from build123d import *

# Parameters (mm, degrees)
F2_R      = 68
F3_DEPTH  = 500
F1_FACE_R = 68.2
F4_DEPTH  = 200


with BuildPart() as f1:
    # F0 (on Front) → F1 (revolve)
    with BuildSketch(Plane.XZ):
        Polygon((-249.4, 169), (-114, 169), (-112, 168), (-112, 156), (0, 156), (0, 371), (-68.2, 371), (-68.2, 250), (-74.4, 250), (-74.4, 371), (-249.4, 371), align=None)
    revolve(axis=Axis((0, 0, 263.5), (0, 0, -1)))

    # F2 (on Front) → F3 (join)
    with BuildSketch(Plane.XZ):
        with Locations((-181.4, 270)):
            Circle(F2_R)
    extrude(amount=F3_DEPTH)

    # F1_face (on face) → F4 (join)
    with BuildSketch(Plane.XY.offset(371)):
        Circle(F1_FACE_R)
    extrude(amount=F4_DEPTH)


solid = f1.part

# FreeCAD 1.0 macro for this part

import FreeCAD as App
import Part
import Sketcher
Q = App.Units.Quantity

doc = App.newDocument("Part")
params = doc.addObject("Spreadsheet::Sheet", "Params")
for row, (alias, value) in enumerate([
    ("sketch1_width", "112 mm"),
    ("sketch1_width2", "175 mm"),
    ("sketch1_height", "12 mm"),
    ("sketch1_height2", "215 mm"),
    ("sketch1_height3", "121 mm"),
    ("revolution_angle", "360 deg"),
    ("sketch2_diameter", "136 mm"),
    ("pad1_length", "500 mm"),
    ("sketch3_diameter", "136.4 mm"),
    ("pad2_length", "200 mm"),
], start=1):
    params.set(f"A{row}", alias)
    params.set(f"B{row}", "=" + value)
    params.setAlias(f"B{row}", alias)

body = doc.addObject("PartDesign::Body", "Body")

sketch1 = body.newObject("Sketcher::SketchObject", "Sketch")
sketch1.AttachmentSupport = (doc.getObject("XZ_Plane"), [""])
sketch1.MapMode = "FlatFace"
sketch1.addGeometry(Part.LineSegment(App.Vector(-249.4, 169, 0), App.Vector(-114, 169, 0)), False)
sketch1.addGeometry(Part.LineSegment(App.Vector(-114, 169, 0), App.Vector(-112, 168, 0)), False)
sketch1.addGeometry(Part.LineSegment(App.Vector(-112, 168, 0), App.Vector(-112, 156, 0)), False)
sketch1.addGeometry(Part.LineSegment(App.Vector(-112, 156, 0), App.Vector(0, 156, 0)), False)
sketch1.addGeometry(Part.LineSegment(App.Vector(0, 156, 0), App.Vector(0, 371, 0)), False)
sketch1.addGeometry(Part.LineSegment(App.Vector(0, 371, 0), App.Vector(-68.2, 371, 0)), False)
sketch1.addGeometry(Part.LineSegment(App.Vector(-68.2, 371, 0), App.Vector(-68.2, 250, 0)), False)
sketch1.addGeometry(Part.LineSegment(App.Vector(-68.2, 250, 0), App.Vector(-74.4, 250, 0)), False)
sketch1.addGeometry(Part.LineSegment(App.Vector(-74.4, 250, 0), App.Vector(-74.4, 371, 0)), False)
sketch1.addGeometry(Part.LineSegment(App.Vector(-74.4, 371, 0), App.Vector(-249.4, 371, 0)), False)
sketch1.addGeometry(Part.LineSegment(App.Vector(-249.4, 371, 0), App.Vector(-249.4, 169, 0)), False)
sketch1.addConstraint(Sketcher.Constraint("Coincident", 0, 2, 1, 1))
sketch1.addConstraint(Sketcher.Constraint("Coincident", 1, 2, 2, 1))
sketch1.addConstraint(Sketcher.Constraint("Coincident", 2, 2, 3, 1))
sketch1.addConstraint(Sketcher.Constraint("Coincident", 3, 2, 4, 1))
sketch1.addConstraint(Sketcher.Constraint("Coincident", 4, 2, 5, 1))
sketch1.addConstraint(Sketcher.Constraint("Coincident", 5, 2, 6, 1))
sketch1.addConstraint(Sketcher.Constraint("Coincident", 6, 2, 7, 1))
sketch1.addConstraint(Sketcher.Constraint("Coincident", 7, 2, 8, 1))
sketch1.addConstraint(Sketcher.Constraint("Coincident", 8, 2, 9, 1))
sketch1.addConstraint(Sketcher.Constraint("Coincident", 9, 2, 10, 1))
sketch1.addConstraint(Sketcher.Constraint("Coincident", 10, 2, 0, 1))
sketch1.addConstraint(Sketcher.Constraint("Horizontal", 0))
sketch1.addConstraint(Sketcher.Constraint("Vertical", 2))
sketch1.addConstraint(Sketcher.Constraint("Horizontal", 3))
sketch1.addConstraint(Sketcher.Constraint("Vertical", 4))
sketch1.addConstraint(Sketcher.Constraint("Horizontal", 5))
sketch1.addConstraint(Sketcher.Constraint("Vertical", 6))
sketch1.addConstraint(Sketcher.Constraint("Horizontal", 7))
sketch1.addConstraint(Sketcher.Constraint("Vertical", 8))
sketch1.addConstraint(Sketcher.Constraint("Horizontal", 9))
sketch1.addConstraint(Sketcher.Constraint("Vertical", 10))
sketch1.addConstraint(Sketcher.Constraint("PointOnObject", 3, 2, -2))
sketch1.addConstraint(Sketcher.Constraint("Horizontal", 5, 2, 8, 2))
sketch1.addConstraint(Sketcher.Constraint("DistanceX", 3, 1, 3, 2, Q("112 mm")))
sketch1.addConstraint(Sketcher.Constraint("DistanceX", 9, 2, 9, 1, Q("175 mm")))
sketch1.addConstraint(Sketcher.Constraint("DistanceY", 2, 2, 2, 1, Q("12 mm")))
sketch1.addConstraint(Sketcher.Constraint("DistanceY", 4, 1, 4, 2, Q("215 mm")))
sketch1.addConstraint(Sketcher.Constraint("DistanceY", 6, 2, 6, 1, Q("121 mm")))
sketch1.addConstraint(Sketcher.Constraint("DistanceY", 10, 2, 10, 1, Q("202 mm")))
sketch1.addConstraint(Sketcher.Constraint("DistanceX", 0, 1, 0, 2, Q("135.4 mm")))
sketch1.addConstraint(Sketcher.Constraint("DistanceX", 5, 2, 5, 1, Q("68.2 mm")))
sketch1.addConstraint(Sketcher.Constraint("DistanceX", 7, 2, 7, 1, Q("6.2 mm")))
sketch1.addConstraint(Sketcher.Constraint("DistanceY", -1, 1, 0, 2, Q("169 mm")))
sketch1.setExpression("Constraints[23]", "Params.sketch1_width")
sketch1.setExpression("Constraints[24]", "Params.sketch1_width2")
sketch1.setExpression("Constraints[25]", "Params.sketch1_height")
sketch1.setExpression("Constraints[26]", "Params.sketch1_height2")
sketch1.setExpression("Constraints[27]", "Params.sketch1_height3")
revolution = body.newObject("PartDesign::Revolution", "Revolution")
revolution.Profile = sketch1
revolution.ReferenceAxis = (sketch1, ["V_Axis"])
revolution.setExpression("Angle", "Params.revolution_angle")

sketch2 = body.newObject("Sketcher::SketchObject", "Sketch001")
sketch2.AttachmentSupport = (doc.getObject("XZ_Plane"), [""])
sketch2.MapMode = "FlatFace"
sketch2.addGeometry(Part.Circle(App.Vector(-181, 270, 0), App.Vector(0, 0, 1), 68), False)
sketch2.addConstraint(Sketcher.Constraint("Diameter", 0, Q("136 mm")))
sketch2.addConstraint(Sketcher.Constraint("DistanceY", -1, 1, 0, 3, Q("270 mm")))
sketch2.addConstraint(Sketcher.Constraint("DistanceX", 0, 3, -1, 1, Q("181.4 mm")))
sketch2.setExpression("Constraints[0]", "Params.sketch2_diameter")
pad1 = body.newObject("PartDesign::Pad", "Pad")
pad1.Profile = sketch2
pad1.setExpression("Length", "Params.pad1_length")

sketch3 = body.newObject("Sketcher::SketchObject", "Sketch002")
sketch3.AttachmentSupport = (doc.getObject("XY_Plane"), [""])
sketch3.MapMode = "FlatFace"
sketch3.AttachmentOffset = App.Placement(App.Vector(0, 0, 371), App.Rotation())
sketch3.addGeometry(Part.Circle(App.Vector(0, 0, 0), App.Vector(0, 0, 1), 68), False)
sketch3.addConstraint(Sketcher.Constraint("Coincident", 0, 3, -1, 1))
sketch3.addConstraint(Sketcher.Constraint("Diameter", 0, Q("136.4 mm")))
sketch3.setExpression("Constraints[1]", "Params.sketch3_diameter")
pad2 = body.newObject("PartDesign::Pad", "Pad001")
pad2.Profile = sketch3
pad2.setExpression("Length", "Params.pad2_length")

doc.recompute()
